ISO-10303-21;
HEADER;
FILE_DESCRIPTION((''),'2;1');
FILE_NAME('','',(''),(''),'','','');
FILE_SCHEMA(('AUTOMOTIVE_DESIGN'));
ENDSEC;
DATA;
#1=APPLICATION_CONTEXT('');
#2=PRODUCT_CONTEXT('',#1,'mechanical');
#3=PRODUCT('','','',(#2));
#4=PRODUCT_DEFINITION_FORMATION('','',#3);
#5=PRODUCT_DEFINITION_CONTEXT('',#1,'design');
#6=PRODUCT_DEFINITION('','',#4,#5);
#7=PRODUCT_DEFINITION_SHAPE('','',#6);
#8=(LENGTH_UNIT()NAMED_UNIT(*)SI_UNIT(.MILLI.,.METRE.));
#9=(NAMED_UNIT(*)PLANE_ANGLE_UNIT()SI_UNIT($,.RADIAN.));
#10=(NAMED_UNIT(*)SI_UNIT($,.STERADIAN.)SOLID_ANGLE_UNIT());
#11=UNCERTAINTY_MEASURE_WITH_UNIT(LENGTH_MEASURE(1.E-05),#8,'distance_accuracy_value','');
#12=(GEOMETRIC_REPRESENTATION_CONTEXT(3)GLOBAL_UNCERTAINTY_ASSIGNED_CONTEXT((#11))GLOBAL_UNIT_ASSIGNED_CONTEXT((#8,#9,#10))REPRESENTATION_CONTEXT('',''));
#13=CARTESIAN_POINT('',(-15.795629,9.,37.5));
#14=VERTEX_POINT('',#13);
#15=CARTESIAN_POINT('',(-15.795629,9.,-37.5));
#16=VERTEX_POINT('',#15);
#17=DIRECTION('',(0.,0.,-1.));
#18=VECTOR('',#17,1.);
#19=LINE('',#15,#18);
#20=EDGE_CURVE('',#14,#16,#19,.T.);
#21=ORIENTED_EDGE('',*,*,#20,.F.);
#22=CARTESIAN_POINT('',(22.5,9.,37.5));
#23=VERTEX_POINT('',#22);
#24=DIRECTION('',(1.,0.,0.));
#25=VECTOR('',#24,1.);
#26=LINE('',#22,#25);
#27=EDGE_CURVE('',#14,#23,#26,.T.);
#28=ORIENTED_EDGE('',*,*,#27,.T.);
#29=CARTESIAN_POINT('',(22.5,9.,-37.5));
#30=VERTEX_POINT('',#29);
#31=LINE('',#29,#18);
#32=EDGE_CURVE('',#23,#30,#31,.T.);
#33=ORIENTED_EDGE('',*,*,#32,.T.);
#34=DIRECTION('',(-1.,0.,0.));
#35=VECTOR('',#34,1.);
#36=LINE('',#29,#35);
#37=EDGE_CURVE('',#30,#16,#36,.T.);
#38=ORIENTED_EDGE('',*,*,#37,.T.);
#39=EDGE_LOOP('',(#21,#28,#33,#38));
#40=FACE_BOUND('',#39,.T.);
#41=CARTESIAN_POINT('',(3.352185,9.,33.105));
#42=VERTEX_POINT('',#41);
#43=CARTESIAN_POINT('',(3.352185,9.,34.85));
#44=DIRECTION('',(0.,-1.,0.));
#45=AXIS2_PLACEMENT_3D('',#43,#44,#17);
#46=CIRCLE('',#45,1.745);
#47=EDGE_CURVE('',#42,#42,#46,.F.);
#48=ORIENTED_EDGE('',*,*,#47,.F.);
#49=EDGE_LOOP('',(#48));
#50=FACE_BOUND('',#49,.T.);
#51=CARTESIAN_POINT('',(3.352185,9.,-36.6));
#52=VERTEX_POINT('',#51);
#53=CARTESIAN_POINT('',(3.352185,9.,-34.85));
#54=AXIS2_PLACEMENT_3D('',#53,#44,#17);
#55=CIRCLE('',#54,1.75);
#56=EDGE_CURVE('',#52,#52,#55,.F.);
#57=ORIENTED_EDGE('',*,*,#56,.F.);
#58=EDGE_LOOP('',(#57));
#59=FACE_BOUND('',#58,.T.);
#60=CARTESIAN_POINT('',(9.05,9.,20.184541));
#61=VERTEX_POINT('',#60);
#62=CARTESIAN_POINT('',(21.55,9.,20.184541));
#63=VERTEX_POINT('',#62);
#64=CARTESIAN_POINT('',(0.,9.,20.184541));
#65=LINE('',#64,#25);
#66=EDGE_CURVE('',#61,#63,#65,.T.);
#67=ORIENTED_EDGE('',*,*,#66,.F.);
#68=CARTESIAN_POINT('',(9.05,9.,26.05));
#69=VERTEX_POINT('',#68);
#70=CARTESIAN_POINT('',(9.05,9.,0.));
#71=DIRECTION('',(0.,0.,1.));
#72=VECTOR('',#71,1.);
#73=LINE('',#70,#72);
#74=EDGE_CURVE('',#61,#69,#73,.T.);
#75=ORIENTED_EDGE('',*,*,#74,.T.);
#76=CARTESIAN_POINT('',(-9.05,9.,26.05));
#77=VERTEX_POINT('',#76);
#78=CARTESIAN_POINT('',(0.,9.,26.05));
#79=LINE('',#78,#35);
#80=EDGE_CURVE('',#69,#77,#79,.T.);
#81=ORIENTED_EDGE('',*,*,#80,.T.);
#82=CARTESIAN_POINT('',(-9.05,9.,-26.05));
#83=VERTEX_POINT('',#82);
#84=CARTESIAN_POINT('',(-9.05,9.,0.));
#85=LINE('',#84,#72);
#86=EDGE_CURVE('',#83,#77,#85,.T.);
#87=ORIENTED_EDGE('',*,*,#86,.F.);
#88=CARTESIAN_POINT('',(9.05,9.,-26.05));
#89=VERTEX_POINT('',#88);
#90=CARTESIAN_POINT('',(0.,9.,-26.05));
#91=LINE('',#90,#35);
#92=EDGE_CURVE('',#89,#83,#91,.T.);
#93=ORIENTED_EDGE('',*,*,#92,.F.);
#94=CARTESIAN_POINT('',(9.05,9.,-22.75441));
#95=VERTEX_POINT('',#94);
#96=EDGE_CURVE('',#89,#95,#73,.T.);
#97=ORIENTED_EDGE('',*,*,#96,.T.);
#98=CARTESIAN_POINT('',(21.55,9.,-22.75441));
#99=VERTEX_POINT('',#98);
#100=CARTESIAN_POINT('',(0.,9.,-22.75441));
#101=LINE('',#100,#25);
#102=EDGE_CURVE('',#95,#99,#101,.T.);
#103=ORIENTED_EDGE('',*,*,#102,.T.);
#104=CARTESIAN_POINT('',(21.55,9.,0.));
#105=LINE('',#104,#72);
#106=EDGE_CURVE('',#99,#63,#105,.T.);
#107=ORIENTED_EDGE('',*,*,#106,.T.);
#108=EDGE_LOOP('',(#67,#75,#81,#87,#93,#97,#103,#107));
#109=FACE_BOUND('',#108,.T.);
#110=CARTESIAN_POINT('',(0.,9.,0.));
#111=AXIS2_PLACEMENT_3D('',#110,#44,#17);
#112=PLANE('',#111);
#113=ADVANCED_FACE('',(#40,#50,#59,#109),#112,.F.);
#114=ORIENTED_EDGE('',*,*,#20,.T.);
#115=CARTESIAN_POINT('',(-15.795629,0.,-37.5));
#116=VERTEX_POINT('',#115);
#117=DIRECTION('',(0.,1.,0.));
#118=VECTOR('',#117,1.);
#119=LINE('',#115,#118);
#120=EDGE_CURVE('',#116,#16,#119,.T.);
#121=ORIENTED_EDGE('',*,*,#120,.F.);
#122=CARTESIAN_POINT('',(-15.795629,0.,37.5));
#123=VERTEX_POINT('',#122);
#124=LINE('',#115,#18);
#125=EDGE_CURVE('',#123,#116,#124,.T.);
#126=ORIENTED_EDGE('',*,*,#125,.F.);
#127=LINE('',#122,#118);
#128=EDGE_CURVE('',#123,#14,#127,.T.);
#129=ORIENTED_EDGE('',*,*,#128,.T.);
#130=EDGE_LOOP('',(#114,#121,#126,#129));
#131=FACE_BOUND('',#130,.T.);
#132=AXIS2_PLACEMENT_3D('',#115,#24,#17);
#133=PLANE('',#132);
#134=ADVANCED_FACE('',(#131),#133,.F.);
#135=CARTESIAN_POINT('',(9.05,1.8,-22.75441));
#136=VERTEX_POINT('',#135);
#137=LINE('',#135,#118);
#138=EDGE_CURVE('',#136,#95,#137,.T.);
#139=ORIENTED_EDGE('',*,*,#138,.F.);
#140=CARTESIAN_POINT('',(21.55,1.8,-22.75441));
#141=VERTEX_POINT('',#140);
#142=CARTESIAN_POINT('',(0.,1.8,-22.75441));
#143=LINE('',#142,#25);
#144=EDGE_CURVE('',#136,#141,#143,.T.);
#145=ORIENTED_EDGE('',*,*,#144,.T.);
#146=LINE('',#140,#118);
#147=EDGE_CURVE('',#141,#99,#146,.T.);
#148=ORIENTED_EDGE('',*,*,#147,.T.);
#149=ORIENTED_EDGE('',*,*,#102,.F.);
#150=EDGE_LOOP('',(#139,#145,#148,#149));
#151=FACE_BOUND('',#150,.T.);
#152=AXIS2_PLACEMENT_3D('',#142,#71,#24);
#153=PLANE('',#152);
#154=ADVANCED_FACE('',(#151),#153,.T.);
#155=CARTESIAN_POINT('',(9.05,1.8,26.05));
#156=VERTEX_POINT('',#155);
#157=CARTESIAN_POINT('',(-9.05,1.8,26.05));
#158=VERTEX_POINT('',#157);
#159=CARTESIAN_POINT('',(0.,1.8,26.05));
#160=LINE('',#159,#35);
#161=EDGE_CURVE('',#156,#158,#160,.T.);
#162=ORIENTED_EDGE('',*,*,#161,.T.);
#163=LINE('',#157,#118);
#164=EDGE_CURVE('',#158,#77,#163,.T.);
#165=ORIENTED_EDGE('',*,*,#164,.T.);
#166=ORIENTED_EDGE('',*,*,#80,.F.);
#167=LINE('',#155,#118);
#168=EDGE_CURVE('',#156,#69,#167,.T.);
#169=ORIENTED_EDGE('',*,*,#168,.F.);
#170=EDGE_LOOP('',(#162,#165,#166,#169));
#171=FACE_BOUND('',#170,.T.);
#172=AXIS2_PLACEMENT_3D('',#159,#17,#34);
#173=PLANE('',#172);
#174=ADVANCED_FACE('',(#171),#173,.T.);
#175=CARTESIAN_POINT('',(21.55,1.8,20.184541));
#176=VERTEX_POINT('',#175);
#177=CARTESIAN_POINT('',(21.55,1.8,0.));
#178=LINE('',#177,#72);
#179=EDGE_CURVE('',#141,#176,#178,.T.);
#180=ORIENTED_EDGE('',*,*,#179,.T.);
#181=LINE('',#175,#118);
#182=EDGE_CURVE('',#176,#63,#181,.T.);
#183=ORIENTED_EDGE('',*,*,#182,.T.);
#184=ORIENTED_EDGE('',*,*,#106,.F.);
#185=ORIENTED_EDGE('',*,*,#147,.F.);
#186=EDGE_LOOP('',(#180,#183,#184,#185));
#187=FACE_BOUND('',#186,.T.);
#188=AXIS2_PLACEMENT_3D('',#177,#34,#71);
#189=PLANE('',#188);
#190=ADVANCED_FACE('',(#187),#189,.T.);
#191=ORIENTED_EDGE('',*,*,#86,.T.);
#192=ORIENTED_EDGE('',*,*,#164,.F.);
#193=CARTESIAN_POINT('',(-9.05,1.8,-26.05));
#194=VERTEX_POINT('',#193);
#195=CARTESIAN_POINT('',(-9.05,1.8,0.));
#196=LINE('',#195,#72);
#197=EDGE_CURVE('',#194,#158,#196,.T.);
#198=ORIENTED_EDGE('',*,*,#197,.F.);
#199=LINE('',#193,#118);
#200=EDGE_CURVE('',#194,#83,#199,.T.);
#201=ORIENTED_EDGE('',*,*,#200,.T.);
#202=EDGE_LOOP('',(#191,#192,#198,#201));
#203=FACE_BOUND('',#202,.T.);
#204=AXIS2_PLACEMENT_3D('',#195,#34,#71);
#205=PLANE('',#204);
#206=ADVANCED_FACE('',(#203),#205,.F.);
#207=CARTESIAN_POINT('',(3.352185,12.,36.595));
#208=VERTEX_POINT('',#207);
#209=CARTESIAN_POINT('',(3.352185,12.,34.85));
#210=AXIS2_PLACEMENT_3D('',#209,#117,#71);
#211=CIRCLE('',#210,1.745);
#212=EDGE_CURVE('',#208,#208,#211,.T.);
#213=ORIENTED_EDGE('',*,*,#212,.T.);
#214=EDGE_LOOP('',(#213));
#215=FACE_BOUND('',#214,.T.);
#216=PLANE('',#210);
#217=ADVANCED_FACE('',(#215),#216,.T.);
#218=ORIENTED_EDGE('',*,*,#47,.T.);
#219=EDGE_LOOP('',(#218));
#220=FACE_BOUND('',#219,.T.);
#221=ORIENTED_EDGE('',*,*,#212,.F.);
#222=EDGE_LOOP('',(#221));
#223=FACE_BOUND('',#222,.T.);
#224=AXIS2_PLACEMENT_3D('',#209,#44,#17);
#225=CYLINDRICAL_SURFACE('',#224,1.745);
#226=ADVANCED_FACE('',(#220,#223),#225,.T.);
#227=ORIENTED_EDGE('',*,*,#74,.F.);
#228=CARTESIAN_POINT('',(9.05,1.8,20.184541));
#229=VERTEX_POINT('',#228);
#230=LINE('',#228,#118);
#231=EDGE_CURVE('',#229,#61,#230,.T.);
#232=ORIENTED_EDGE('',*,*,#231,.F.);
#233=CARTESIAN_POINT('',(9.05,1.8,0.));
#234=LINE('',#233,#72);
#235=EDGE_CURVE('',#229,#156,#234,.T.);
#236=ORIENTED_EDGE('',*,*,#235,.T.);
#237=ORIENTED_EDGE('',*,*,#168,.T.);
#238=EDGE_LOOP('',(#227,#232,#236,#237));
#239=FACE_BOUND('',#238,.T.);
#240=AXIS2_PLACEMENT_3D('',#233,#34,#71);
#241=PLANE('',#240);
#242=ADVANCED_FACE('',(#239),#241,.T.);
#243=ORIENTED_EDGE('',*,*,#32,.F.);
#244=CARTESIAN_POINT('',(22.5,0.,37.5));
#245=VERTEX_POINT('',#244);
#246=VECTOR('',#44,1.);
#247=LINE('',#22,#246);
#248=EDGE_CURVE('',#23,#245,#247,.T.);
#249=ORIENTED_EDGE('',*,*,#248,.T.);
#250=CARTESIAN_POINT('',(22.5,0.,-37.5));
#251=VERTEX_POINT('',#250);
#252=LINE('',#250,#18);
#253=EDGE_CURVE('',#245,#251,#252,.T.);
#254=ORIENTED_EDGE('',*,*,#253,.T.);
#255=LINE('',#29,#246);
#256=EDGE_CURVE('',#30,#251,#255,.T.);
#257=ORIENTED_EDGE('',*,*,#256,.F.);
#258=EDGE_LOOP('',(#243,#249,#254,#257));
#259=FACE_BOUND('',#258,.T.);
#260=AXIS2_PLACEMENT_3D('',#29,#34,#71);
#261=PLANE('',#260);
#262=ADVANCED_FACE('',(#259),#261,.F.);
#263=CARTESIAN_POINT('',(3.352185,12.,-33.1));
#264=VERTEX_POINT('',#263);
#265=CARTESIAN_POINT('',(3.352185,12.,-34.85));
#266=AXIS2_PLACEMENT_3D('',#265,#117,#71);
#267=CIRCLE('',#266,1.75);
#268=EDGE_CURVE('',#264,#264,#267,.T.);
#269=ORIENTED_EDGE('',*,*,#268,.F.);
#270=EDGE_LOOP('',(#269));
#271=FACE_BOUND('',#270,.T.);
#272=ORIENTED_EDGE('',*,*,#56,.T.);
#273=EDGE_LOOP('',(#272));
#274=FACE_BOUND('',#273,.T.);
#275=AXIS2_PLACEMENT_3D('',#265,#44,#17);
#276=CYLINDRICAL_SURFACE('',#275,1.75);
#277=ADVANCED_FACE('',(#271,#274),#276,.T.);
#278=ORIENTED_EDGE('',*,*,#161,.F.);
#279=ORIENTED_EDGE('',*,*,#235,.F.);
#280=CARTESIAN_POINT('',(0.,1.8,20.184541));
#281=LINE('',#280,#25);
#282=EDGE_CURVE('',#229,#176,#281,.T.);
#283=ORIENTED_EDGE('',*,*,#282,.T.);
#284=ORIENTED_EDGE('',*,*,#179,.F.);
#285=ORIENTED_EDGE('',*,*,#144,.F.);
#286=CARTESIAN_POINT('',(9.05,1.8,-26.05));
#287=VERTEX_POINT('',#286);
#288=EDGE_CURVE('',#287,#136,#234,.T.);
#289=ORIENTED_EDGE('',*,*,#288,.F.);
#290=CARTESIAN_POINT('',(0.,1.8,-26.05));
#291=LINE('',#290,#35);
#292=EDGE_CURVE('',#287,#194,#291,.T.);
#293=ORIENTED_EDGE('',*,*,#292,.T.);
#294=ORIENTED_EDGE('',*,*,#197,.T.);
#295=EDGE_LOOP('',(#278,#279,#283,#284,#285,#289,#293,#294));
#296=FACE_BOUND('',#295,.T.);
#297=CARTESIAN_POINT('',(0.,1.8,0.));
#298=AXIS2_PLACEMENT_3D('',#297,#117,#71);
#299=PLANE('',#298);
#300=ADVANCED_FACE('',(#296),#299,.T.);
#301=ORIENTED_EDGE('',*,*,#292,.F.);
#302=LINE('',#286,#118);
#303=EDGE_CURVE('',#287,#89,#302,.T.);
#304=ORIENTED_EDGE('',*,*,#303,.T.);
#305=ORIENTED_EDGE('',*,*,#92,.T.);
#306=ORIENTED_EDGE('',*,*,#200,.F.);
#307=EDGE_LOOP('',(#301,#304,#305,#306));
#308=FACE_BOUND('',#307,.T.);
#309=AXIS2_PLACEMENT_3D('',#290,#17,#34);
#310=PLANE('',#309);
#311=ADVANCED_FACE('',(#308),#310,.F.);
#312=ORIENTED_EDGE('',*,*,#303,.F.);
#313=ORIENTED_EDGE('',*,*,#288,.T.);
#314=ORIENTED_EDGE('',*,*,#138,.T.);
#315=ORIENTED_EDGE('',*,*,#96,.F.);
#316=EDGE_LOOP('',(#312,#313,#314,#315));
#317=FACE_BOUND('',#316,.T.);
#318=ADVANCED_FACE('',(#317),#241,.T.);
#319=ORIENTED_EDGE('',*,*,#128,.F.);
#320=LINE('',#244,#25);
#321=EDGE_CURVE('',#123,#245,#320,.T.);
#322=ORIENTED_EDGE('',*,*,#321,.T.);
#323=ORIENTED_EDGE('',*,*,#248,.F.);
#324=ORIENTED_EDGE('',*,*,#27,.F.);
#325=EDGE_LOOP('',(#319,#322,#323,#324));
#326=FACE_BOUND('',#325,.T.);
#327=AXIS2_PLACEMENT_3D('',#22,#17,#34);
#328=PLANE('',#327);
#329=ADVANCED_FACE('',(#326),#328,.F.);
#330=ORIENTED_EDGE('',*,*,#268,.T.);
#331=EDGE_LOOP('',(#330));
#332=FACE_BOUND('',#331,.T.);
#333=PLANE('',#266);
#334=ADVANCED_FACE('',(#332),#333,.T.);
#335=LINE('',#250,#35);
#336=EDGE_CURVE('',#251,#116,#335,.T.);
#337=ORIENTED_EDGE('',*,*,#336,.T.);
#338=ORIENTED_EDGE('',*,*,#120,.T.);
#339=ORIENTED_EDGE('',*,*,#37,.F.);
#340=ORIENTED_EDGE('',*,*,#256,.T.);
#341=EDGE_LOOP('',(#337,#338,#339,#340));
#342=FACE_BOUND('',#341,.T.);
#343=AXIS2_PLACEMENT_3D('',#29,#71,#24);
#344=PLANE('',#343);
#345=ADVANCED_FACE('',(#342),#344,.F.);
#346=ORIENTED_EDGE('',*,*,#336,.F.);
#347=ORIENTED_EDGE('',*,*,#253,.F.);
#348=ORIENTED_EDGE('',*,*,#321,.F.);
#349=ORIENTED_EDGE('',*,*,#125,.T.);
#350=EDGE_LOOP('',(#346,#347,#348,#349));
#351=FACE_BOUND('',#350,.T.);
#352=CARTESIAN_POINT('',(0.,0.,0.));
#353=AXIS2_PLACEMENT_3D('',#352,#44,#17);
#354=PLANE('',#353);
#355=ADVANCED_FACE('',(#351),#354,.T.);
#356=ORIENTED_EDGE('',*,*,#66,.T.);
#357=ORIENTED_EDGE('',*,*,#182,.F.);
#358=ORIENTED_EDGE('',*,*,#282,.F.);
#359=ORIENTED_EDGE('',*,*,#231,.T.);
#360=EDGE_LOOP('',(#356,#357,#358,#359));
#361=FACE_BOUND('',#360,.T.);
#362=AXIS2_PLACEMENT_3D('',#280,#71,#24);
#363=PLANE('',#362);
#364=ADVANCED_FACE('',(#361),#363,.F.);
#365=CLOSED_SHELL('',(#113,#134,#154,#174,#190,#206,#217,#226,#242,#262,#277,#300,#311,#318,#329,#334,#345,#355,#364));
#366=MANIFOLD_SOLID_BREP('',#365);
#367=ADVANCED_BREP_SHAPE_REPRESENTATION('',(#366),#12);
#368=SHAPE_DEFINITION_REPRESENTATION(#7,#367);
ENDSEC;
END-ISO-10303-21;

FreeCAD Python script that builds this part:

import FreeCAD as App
import Part
import Sketcher

V = App.Vector


def add_polygon(sketch, points):
    """Adds a closed chain of lines whose ends are joined by coincident constraints."""
    first, n = sketch.GeometryCount, len(points)
    for a, b in zip(points, points[1:] + points[:1]):
        sketch.addGeometry(Part.LineSegment(App.Vector(*a, 0), App.Vector(*b, 0)), False)
    for i in range(n):
        sketch.addConstraint(Sketcher.Constraint("Coincident", first + i, 2, first + (i + 1) % n, 1))

doc = App.newDocument("Part")
body = doc.addObject("PartDesign::Body", "Body")

# Sketch on XZ plane
sketch1 = body.newObject("Sketcher::SketchObject", "Sketch")
sketch1.AttachmentSupport = (doc.getObject("XZ_Plane"), [""])
sketch1.MapMode = "FlatFace"
add_polygon(sketch1, [(-22.5, -37.5), (-22.5, 37.5), (22.5, 37.5), (22.5, -37.5)])  # lines 0-3
sketch1.addConstraint([
    Sketcher.Constraint("Vertical", 0),
    Sketcher.Constraint("Horizontal", 1),
    Sketcher.Constraint("Vertical", 2),
    Sketcher.Constraint("Horizontal", 3),
    Sketcher.Constraint("Symmetric", 0, 2, 2, 2, -1, 1),
    Sketcher.Constraint("DistanceX", 1, 1, 1, 2, 45.0),
    Sketcher.Constraint("DistanceY", 0, 1, 0, 2, 75.0),
])
pad1 = body.newObject("PartDesign::Pad", "Pad")
pad1.Profile = sketch1
pad1.Length = 9
pad1.Reversed = True

# Sketch on XZ plane
sketch2 = body.newObject("Sketcher::SketchObject", "Sketch001")
sketch2.AttachmentSupport = (doc.getObject("XZ_Plane"), [""])
sketch2.MapMode = "FlatFace"
sketch2.AttachmentOffset = App.Placement(V(0, 0, -9), App.Rotation())
add_polygon(sketch2, [(-9.05, -26.05), (-9.05, 26.05), (9.05, 26.05), (9.05, 20.184541), (21.55, 20.184541), (21.55, -22.75441), (9.05, -22.75441), (9.05, -26.05)])  # lines 0-7
sketch2.addConstraint([
    Sketcher.Constraint("Vertical", 0),
    Sketcher.Constraint("Horizontal", 1),
    Sketcher.Constraint("Vertical", 2),
    Sketcher.Constraint("Horizontal", 3),
    Sketcher.Constraint("Vertical", 4),
    Sketcher.Constraint("Horizontal", 5),
    Sketcher.Constraint("Vertical", 6),
    Sketcher.Constraint("Horizontal", 7),
    Sketcher.Constraint("Symmetric", 0, 2, 6, 2, -1, 1),
    Sketcher.Constraint("Vertical", 2, 2, 5, 2),
    Sketcher.Constraint("DistanceX", 1, 1, 1, 2, 18.1),
    Sketcher.Constraint("DistanceX", 3, 1, 3, 2, 12.5),
    Sketcher.Constraint("DistanceY", 0, 1, 0, 2, 52.1),
    Sketcher.Constraint("DistanceY", 2, 2, 2, 1, 5.865459),
    Sketcher.Constraint("DistanceY", 4, 2, 4, 1, 42.938952),
])
pocket1 = body.newObject("PartDesign::Pocket", "Pocket")
pocket1.Profile = sketch2
pocket1.Length = 7.2
pocket1.Reversed = True

# Sketch on XZ plane
sketch3 = body.newObject("Sketcher::SketchObject", "Sketch002")
sketch3.AttachmentSupport = (doc.getObject("XZ_Plane"), [""])
sketch3.MapMode = "FlatFace"
sketch3.AttachmentOffset = App.Placement(V(0, 0, -9), App.Rotation())
add_polygon(sketch3, [(-22.5, -37.5), (-22.5, 37.5), (-15.795629, 37.5), (-15.795629, -37.5)])  # lines 0-3
sketch3.addConstraint([
    Sketcher.Constraint("Vertical", 0),
    Sketcher.Constraint("Horizontal", 1),
    Sketcher.Constraint("Vertical", 2),
    Sketcher.Constraint("Horizontal", 3),
    Sketcher.Constraint("DistanceY", 0, 1, 0, 2, 75.0),
    Sketcher.Constraint("DistanceX", 0, 2, -1, 1, 22.5),
    Sketcher.Constraint("DistanceY", -1, 1, 0, 2, 37.5),
    Sketcher.Constraint("DistanceX", 1, 1, 1, 2, 6.704371),
])
pocket2 = body.newObject("PartDesign::Pocket", "Pocket001")
pocket2.Profile = sketch3
pocket2.Length = 9
pocket2.Reversed = True

# Sketch on XZ plane
sketch4 = body.newObject("Sketcher::SketchObject", "Sketch003")
sketch4.AttachmentSupport = (doc.getObject("XZ_Plane"), [""])
sketch4.MapMode = "FlatFace"
sketch4.AttachmentOffset = App.Placement(V(0, 0, -9), App.Rotation())
sketch4.addGeometry([
    Part.Circle(V(3.352185, 34.85, 0), V(0, 0, 1), 1.745),
    Part.Circle(V(3.352185, -34.85, 0), V(0, 0, 1), 1.75),
], False)
sketch4.addConstraint([
    Sketcher.Constraint("Symmetric", 0, 3, 1, 3, -1),
    Sketcher.Constraint("Diameter", 1, 3.5),
    Sketcher.Constraint("Diameter", 0, 3.49),
    Sketcher.Constraint("DistanceY", 1, 3, 0, 3, 69.7),
    Sketcher.Constraint("DistanceX", -1, 1, 0, 3, 3.352185),
])
pad2 = body.newObject("PartDesign::Pad", "Pad001")
pad2.Profile = sketch4
pad2.Length = 3
pad2.Reversed = True

doc.recompute()
